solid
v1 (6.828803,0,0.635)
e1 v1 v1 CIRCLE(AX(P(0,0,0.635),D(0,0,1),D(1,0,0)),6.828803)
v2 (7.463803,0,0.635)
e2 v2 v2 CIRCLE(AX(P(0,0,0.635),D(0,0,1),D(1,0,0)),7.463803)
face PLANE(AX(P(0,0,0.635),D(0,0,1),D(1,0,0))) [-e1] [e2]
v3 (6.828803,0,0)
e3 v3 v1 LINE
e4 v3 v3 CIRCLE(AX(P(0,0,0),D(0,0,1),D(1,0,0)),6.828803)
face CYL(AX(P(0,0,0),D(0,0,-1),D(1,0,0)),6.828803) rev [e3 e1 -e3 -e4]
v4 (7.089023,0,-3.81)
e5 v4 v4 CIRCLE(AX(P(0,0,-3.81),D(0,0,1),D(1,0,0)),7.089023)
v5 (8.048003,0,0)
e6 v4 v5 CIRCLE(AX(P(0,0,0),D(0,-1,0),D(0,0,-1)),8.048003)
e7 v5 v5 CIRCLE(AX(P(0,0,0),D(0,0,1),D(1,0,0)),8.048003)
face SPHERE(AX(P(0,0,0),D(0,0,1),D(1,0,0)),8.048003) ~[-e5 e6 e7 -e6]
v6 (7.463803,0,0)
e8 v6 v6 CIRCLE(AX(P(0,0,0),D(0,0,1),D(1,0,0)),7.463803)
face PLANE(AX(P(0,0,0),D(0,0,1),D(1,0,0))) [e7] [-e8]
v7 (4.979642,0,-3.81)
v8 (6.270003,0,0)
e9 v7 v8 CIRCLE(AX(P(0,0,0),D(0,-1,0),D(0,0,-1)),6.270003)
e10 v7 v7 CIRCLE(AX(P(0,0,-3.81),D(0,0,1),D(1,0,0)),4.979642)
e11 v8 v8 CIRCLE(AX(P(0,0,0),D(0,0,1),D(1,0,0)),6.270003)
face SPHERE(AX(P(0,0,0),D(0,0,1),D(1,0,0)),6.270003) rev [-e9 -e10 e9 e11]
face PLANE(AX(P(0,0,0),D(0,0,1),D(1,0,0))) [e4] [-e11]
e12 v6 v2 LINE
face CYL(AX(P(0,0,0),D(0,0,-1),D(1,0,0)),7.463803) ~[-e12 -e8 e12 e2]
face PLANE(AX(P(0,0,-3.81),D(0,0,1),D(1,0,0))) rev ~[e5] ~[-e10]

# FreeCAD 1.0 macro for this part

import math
import FreeCAD as App
import Part
import Sketcher
Q = App.Units.Quantity

doc = App.newDocument("Part")
params = doc.addObject("Spreadsheet::Sheet", "Params")
for row, (alias, value) in enumerate([
    ("revolution_angle", "360 deg"),
    ("groove_angle", "360 deg"),
    ("sketch3_diameter", "1 in"),
    ("pocket1_length", "1 in"),
    ("sketch4_diameter", "1 in"),
    ("pocket2_length", "1 in"),
    ("pad1_length", "0.025 in"),
], start=1):
    params.set(f"A{row}", alias)
    params.set(f"B{row}", "=" + value)
    params.setAlias(f"B{row}", alias)

body = doc.addObject("PartDesign::Body", "Body")

sketch1 = body.newObject("Sketcher::SketchObject", "Sketch")
sketch1.AttachmentSupport = (doc.getObject("XZ_Plane"), [""])
sketch1.MapMode = "FlatFace"
sketch1.addGeometry([
    Part.ArcOfCircle(Part.Circle(App.Vector(0, 0, 0), App.Vector(0, 0, 1), 8), math.radians(-90), math.radians(90)),
    Part.LineSegment(App.Vector(0, 8, 0), App.Vector(0, -8, 0)),
], False)
sketch1.addConstraint([
    Sketcher.Constraint("Coincident", 0, 1, 1, 2),
    Sketcher.Constraint("Coincident", 1, 1, 0, 2),
    Sketcher.Constraint("Vertical", 1),
    Sketcher.Constraint("Coincident", 0, 3, -1, 1),
    Sketcher.Constraint("PointOnObject", 0, 1, -2),
    Sketcher.Constraint("Radius", 0, Q("8.048003 mm")),
])
revolution = body.newObject("PartDesign::Revolution", "Revolution")
revolution.Profile = sketch1
revolution.ReferenceAxis = (sketch1, ["V_Axis"])
revolution.setExpression("Angle", "Params.revolution_angle")

sketch2 = body.newObject("Sketcher::SketchObject", "Sketch001")
sketch2.AttachmentSupport = (doc.getObject("XZ_Plane"), [""])
sketch2.MapMode = "FlatFace"
sketch2.addGeometry([
    Part.ArcOfCircle(Part.Circle(App.Vector(0, 0, 0), App.Vector(0, 0, 1), 6), math.radians(-90), math.radians(90)),
    Part.LineSegment(App.Vector(0, 6, 0), App.Vector(0, -6, 0)),
], False)
sketch2.addConstraint([
    Sketcher.Constraint("Coincident", 0, 1, 1, 2),
    Sketcher.Constraint("Coincident", 1, 1, 0, 2),
    Sketcher.Constraint("Vertical", 1),
    Sketcher.Constraint("Coincident", 0, 3, -1, 1),
    Sketcher.Constraint("PointOnObject", 0, 1, -2),
    Sketcher.Constraint("Radius", 0, Q("6.270003 mm")),
])
groove = body.newObject("PartDesign::Groove", "Groove")
groove.Profile = sketch2
groove.ReferenceAxis = (sketch2, ["V_Axis"])
groove.setExpression("Angle", "Params.groove_angle")

sketch3 = body.newObject("Sketcher::SketchObject", "Sketch002")
sketch3.AttachmentSupport = (doc.getObject("XY_Plane"), [""])
sketch3.MapMode = "FlatFace"
sketch3.addGeometry(Part.Circle(App.Vector(0, 0, 0), App.Vector(0, 0, 1), 13), False)
sketch3.addConstraint([
    Sketcher.Constraint("Coincident", 0, 3, -1, 1),
    Sketcher.Constraint("Diameter", 0, Q("1 in")),
])
sketch3.setExpression("Constraints[1]", "Params.sketch3_diameter")
pocket1 = body.newObject("PartDesign::Pocket", "Pocket")
pocket1.Profile = sketch3
pocket1.setExpression("Length", "Params.pocket1_length")
pocket1.Reversed = True

sketch4 = body.newObject("Sketcher::SketchObject", "Sketch003")
sketch4.AttachmentSupport = (doc.getObject("XY_Plane"), [""])
sketch4.MapMode = "FlatFace"
sketch4.AttachmentOffset = App.Placement(App.Vector(0, 0, -0.15 * 25.4), App.Rotation())
sketch4.addGeometry(Part.Circle(App.Vector(0, 0, 0), App.Vector(0, 0, 1), 13), False)
sketch4.addConstraint([
    Sketcher.Constraint("Coincident", 0, 3, -1, 1),
    Sketcher.Constraint("Diameter", 0, Q("1 in")),
])
sketch4.setExpression("Constraints[1]", "Params.sketch4_diameter")
pocket2 = body.newObject("PartDesign::Pocket", "Pocket001")
pocket2.Profile = sketch4
pocket2.setExpression("Length", "Params.pocket2_length")

sketch5 = body.newObject("Sketcher::SketchObject", "Sketch004")
sketch5.AttachmentSupport = (doc.getObject("XY_Plane"), [""])
sketch5.MapMode = "FlatFace"
sketch5.addGeometry([
    Part.Circle(App.Vector(0, 0, 0), App.Vector(0, 0, 1), 7),
    Part.Circle(App.Vector(0, 0, 0), App.Vector(0, 0, 1), 7),
], False)
sketch5.addConstraint([
    Sketcher.Constraint("Coincident", 0, 3, -1, 1),
    Sketcher.Constraint("Coincident", 1, 3, -1, 1),
    Sketcher.Constraint("Diameter", 0, Q("14.927606 mm")),
    Sketcher.Constraint("Diameter", 1, Q("13.657606 mm")),
])
pad1 = body.newObject("PartDesign::Pad", "Pad")
pad1.Profile = sketch5
pad1.setExpression("Length", "Params.pad1_length")

doc.recompute()
